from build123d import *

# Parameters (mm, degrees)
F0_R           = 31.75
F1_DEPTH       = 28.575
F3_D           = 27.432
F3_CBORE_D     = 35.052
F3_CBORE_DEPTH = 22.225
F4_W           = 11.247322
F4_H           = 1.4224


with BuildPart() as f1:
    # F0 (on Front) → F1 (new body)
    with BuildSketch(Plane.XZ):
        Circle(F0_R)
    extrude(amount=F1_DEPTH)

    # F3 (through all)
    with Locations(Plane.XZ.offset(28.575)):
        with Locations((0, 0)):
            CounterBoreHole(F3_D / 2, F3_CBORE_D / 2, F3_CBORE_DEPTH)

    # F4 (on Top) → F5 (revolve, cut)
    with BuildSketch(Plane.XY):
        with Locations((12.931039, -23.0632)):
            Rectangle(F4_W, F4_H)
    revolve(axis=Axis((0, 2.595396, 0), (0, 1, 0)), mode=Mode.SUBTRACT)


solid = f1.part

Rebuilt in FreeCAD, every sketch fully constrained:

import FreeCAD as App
import Part
import Sketcher

V = App.Vector
Q = App.Units.Quantity

doc = App.newDocument("Part")
body = doc.addObject("PartDesign::Body", "Body")

# Sketch on XZ plane
sketch1 = body.newObject("Sketcher::SketchObject", "Sketch")
sketch1.AttachmentSupport = (doc.getObject("XZ_Plane"), [""])
sketch1.MapMode = "FlatFace"
sketch1.addGeometry(Part.Circle(V(0, 0, 0), V(0, 0, 1), 32), False)
sketch1.addConstraint(Sketcher.Constraint("Coincident", 0, 3, -1, 1))
sketch1.addConstraint(Sketcher.Constraint("Diameter", 0, Q("2.5 in")))
pad1 = body.newObject("PartDesign::Pad", "Pad")
pad1.Profile = sketch1
pad1.Length = Q("1.125 in")

# Sketch on XZ plane
sketch2 = body.newObject("Sketcher::SketchObject", "Sketch001")
sketch2.AttachmentSupport = (doc.getObject("XZ_Plane"), [""])
sketch2.MapMode = "FlatFace"
sketch2.AttachmentOffset = App.Placement(V(0, 0, 1.125 * 25.4), App.Rotation())
sketch2.addGeometry(Part.Circle(V(0, 0, 0), V(0, 0, 1), 14), False)
sketch2.addConstraint(Sketcher.Constraint("Coincident", 0, 3, -1, 1))
sketch2.addConstraint(Sketcher.Constraint("Diameter", 0, Q("1.08 in")))
doc.recompute()
hole = body.newObject("PartDesign::Hole", "Hole")
hole.Profile = sketch2
hole.ThreadType = "None"
hole.Diameter = Q("1.08 in")
hole.DepthType = "ThroughAll"
hole.HoleCutType = "Counterbore"
hole.HoleCutDiameter = Q("1.38 in")
hole.HoleCutDepth = Q("0.875 in")

# Sketch on XY plane
sketch3 = body.newObject("Sketcher::SketchObject", "Sketch002")
sketch3.AttachmentSupport = (doc.getObject("XY_Plane"), [""])
sketch3.MapMode = "FlatFace"
sketch3.addGeometry(Part.LineSegment(V(7.3, -22.4, 0), V(7.3, -23.8, 0)), False)
sketch3.addGeometry(Part.LineSegment(V(7.3, -23.8, 0), V(18.6, -23.8, 0)), False)
sketch3.addGeometry(Part.LineSegment(V(18.6, -23.8, 0), V(18.6, -22.4, 0)), False)
sketch3.addGeometry(Part.LineSegment(V(18.6, -22.4, 0), V(7.3, -22.4, 0)), False)
sketch3.addConstraint(Sketcher.Constraint("Coincident", 0, 2, 1, 1))
sketch3.addConstraint(Sketcher.Constraint("Coincident", 1, 2, 2, 1))
sketch3.addConstraint(Sketcher.Constraint("Coincident", 2, 2, 3, 1))
sketch3.addConstraint(Sketcher.Constraint("Coincident", 3, 2, 0, 1))
sketch3.addConstraint(Sketcher.Constraint("Vertical", 0))
sketch3.addConstraint(Sketcher.Constraint("Horizontal", 1))
sketch3.addConstraint(Sketcher.Constraint("Vertical", 2))
sketch3.addConstraint(Sketcher.Constraint("Horizontal", 3))
sketch3.addConstraint(Sketcher.Constraint("DistanceY", 0, 2, 0, 1, Q("0.056 in")))
sketch3.addConstraint(Sketcher.Constraint("DistanceY", 2, 2, -1, 1, Q("0.88 in")))
sketch3.addConstraint(Sketcher.Constraint("DistanceX", -1, 1, 1, 2, Q("0.7305 in")))
sketch3.addConstraint(Sketcher.Constraint("DistanceX", 1, 1, 1, 2, Q("11.247322 mm")))
groove = body.newObject("PartDesign::Groove", "Groove")
groove.Profile = sketch3
groove.ReferenceAxis = (sketch3, ["V_Axis"])
groove.Angle = 360

doc.recompute()
